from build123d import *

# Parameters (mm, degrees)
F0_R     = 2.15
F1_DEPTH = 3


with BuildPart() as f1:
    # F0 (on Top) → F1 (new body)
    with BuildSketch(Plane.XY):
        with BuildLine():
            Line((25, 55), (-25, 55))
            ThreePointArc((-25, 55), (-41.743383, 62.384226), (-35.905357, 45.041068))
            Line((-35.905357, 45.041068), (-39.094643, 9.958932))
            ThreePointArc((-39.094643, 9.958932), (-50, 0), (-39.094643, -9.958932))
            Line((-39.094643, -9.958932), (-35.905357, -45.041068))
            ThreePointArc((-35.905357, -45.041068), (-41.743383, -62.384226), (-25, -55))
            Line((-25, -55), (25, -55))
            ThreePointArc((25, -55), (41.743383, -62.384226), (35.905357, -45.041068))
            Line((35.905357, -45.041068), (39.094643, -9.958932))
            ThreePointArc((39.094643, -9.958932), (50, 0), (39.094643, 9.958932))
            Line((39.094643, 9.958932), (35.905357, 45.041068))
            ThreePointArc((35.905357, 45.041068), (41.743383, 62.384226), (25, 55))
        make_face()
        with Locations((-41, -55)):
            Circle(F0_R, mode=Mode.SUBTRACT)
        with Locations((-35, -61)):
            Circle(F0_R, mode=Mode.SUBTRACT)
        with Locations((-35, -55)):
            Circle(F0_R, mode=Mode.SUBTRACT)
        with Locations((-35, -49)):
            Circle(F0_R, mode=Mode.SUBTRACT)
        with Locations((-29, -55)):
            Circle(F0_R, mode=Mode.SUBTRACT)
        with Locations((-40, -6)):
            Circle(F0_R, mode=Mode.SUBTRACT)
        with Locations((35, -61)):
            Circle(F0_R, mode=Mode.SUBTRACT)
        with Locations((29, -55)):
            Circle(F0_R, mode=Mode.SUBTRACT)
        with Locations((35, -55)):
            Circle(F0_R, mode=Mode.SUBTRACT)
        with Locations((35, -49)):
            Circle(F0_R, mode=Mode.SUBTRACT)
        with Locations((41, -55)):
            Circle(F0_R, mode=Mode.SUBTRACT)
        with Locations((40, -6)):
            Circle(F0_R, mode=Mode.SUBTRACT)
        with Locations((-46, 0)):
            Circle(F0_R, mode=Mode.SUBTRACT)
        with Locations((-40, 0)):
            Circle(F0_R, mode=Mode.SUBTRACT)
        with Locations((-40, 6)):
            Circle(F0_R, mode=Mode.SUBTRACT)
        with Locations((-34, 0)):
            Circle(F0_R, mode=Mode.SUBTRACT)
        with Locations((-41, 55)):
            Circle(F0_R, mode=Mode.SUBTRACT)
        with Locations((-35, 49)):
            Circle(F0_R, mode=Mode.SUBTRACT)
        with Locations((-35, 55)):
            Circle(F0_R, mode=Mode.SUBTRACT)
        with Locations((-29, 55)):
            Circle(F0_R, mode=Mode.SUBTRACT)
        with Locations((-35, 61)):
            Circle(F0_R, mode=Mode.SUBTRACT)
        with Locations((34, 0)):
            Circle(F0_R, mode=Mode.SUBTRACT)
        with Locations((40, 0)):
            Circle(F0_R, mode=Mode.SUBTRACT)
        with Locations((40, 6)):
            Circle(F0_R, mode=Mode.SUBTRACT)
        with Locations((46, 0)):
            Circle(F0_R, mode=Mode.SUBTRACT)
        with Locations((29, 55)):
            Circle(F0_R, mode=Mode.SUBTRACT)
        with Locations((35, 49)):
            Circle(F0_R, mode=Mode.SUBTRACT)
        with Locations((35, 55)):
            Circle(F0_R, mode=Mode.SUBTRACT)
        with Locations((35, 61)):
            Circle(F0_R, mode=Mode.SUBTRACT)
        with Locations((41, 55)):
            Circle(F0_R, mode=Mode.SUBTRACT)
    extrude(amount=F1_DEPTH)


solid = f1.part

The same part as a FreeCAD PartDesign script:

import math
import FreeCAD as App
import Part
import Sketcher

V = App.Vector
Q = App.Units.Quantity

doc = App.newDocument("Part")
params = doc.addObject("Spreadsheet::Sheet", "Params")
for row, (alias, value) in enumerate([
    ("sketch1_radius", "10 mm"),
    ("sketch1_diameter", "4.3 mm"),
    ("sketch1_width", "50 mm"),
    ("pad1_length", "3 mm"),
], start=1):
    params.set(f"A{row}", alias)
    params.set(f"B{row}", "=" + value)
    params.setAlias(f"B{row}", alias)

body = doc.addObject("PartDesign::Body", "Body")

# Sketch on XY plane
sketch1 = body.newObject("Sketcher::SketchObject", "Sketch")
sketch1.AttachmentSupport = (doc.getObject("XY_Plane"), [""])
sketch1.MapMode = "FlatFace"
sketch1.addGeometry(Part.LineSegment(V(25, 55, 0), V(-25, 55, 0)), False)
sketch1.addGeometry(Part.ArcOfCircle(Part.Circle(V(-35, 55, 0), V(0, 0, 1), 10), math.radians(0), math.radians(265)), False)
sketch1.addGeometry(Part.LineSegment(V(-35.9, 45, 0), V(-39.1, 10, 0)), False)
sketch1.addGeometry(Part.ArcOfCircle(Part.Circle(V(-40, 0, 0), V(0, 0, 1), 10), math.radians(85), math.radians(275)), False)
sketch1.addGeometry(Part.LineSegment(V(-39.1, -10, 0), V(-35.9, -45, 0)), False)
sketch1.addGeometry(Part.ArcOfCircle(Part.Circle(V(-35, -55, 0), V(0, 0, 1), 10), math.radians(95), math.radians(360)), False)
sketch1.addGeometry(Part.LineSegment(V(-25, -55, 0), V(25, -55, 0)), False)
sketch1.addGeometry(Part.ArcOfCircle(Part.Circle(V(35, -55, 0), V(0, 0, 1), 10), math.radians(180), math.radians(445)), False)
sketch1.addGeometry(Part.LineSegment(V(35.9, -45, 0), V(39.1, -10, 0)), False)
sketch1.addGeometry(Part.ArcOfCircle(Part.Circle(V(40, 0, 0), V(0, 0, 1), 10), math.radians(-95), math.radians(95)), False)
sketch1.addGeometry(Part.LineSegment(V(39.1, 10, 0), V(35.9, 45, 0)), False)
sketch1.addGeometry(Part.ArcOfCircle(Part.Circle(V(35, 55, 0), V(0, 0, 1), 10), math.radians(-85), math.radians(180)), False)
sketch1.addGeometry(Part.Circle(V(-41, -55, 0), V(0, 0, 1), 2.1), False)
sketch1.addGeometry(Part.Circle(V(-35, -61, 0), V(0, 0, 1), 2.1), False)
sketch1.addGeometry(Part.Circle(V(-35, -55, 0), V(0, 0, 1), 2.1), False)
sketch1.addGeometry(Part.Circle(V(-35, -49, 0), V(0, 0, 1), 2.1), False)
sketch1.addGeometry(Part.Circle(V(-29, -55, 0), V(0, 0, 1), 2.1), False)
sketch1.addGeometry(Part.Circle(V(-40, -6, 0), V(0, 0, 1), 2.1), False)
sketch1.addGeometry(Part.Circle(V(35, -61, 0), V(0, 0, 1), 2.1), False)
sketch1.addGeometry(Part.Circle(V(29, -55, 0), V(0, 0, 1), 2.1), False)
sketch1.addGeometry(Part.Circle(V(35, -55, 0), V(0, 0, 1), 2.1), False)
sketch1.addGeometry(Part.Circle(V(35, -49, 0), V(0, 0, 1), 2.1), False)
sketch1.addGeometry(Part.Circle(V(41, -55, 0), V(0, 0, 1), 2.1), False)
sketch1.addGeometry(Part.Circle(V(40, -6, 0), V(0, 0, 1), 2.1), False)
sketch1.addGeometry(Part.Circle(V(-46, 0, 0), V(0, 0, 1), 2.1), False)
sketch1.addGeometry(Part.Circle(V(-40, 0, 0), V(0, 0, 1), 2.1), False)
sketch1.addGeometry(Part.Circle(V(-40, 6, 0), V(0, 0, 1), 2.1), False)
sketch1.addGeometry(Part.Circle(V(-34, 0, 0), V(0, 0, 1), 2.1), False)
sketch1.addGeometry(Part.Circle(V(-41, 55, 0), V(0, 0, 1), 2.1), False)
sketch1.addGeometry(Part.Circle(V(-35, 49, 0), V(0, 0, 1), 2.1), False)
sketch1.addGeometry(Part.Circle(V(-35, 55, 0), V(0, 0, 1), 2.1), False)
sketch1.addGeometry(Part.Circle(V(-29, 55, 0), V(0, 0, 1), 2.1), False)
sketch1.addGeometry(Part.Circle(V(-35, 61, 0), V(0, 0, 1), 2.1), False)
sketch1.addGeometry(Part.Circle(V(34, 0, 0), V(0, 0, 1), 2.1), False)
sketch1.addGeometry(Part.Circle(V(40, 0, 0), V(0, 0, 1), 2.1), False)
sketch1.addGeometry(Part.Circle(V(40, 6, 0), V(0, 0, 1), 2.1), False)
sketch1.addGeometry(Part.Circle(V(46, 0, 0), V(0, 0, 1), 2.1), False)
sketch1.addGeometry(Part.Circle(V(29, 55, 0), V(0, 0, 1), 2.1), False)
sketch1.addGeometry(Part.Circle(V(35, 49, 0), V(0, 0, 1), 2.1), False)
sketch1.addGeometry(Part.Circle(V(35, 55, 0), V(0, 0, 1), 2.1), False)
sketch1.addGeometry(Part.Circle(V(35, 61, 0), V(0, 0, 1), 2.1), False)
sketch1.addGeometry(Part.Circle(V(41, 55, 0), V(0, 0, 1), 2.1), False)
sketch1.addConstraint(Sketcher.Constraint("Coincident", 0, 2, 1, 1))
sketch1.addConstraint(Sketcher.Constraint("Coincident", 1, 2, 2, 1))
sketch1.addConstraint(Sketcher.Constraint("Coincident", 2, 2, 3, 1))
sketch1.addConstraint(Sketcher.Constraint("Coincident", 3, 2, 4, 1))
sketch1.addConstraint(Sketcher.Constraint("Coincident", 4, 2, 5, 1))
sketch1.addConstraint(Sketcher.Constraint("Coincident", 5, 2, 6, 1))
sketch1.addConstraint(Sketcher.Constraint("Coincident", 6, 2, 7, 1))
sketch1.addConstraint(Sketcher.Constraint("Coincident", 7, 2, 8, 1))
sketch1.addConstraint(Sketcher.Constraint("Coincident", 8, 2, 9, 1))
sketch1.addConstraint(Sketcher.Constraint("Coincident", 9, 2, 10, 1))
sketch1.addConstraint(Sketcher.Constraint("Coincident", 10, 2, 11, 1))
sketch1.addConstraint(Sketcher.Constraint("Coincident", 11, 2, 0, 1))
sketch1.addConstraint(Sketcher.Constraint("Horizontal", 0))
sketch1.addConstraint(Sketcher.Constraint("Horizontal", 6))
sketch1.addConstraint(Sketcher.Constraint("Coincident", 14, 3, 5, 3))
sketch1.addConstraint(Sketcher.Constraint("Coincident", 20, 3, 7, 3))
sketch1.addConstraint(Sketcher.Constraint("Coincident", 25, 3, 3, 3))
sketch1.addConstraint(Sketcher.Constraint("Coincident", 30, 3, 1, 3))
sketch1.addConstraint(Sketcher.Constraint("Coincident", 34, 3, 9, 3))
sketch1.addConstraint(Sketcher.Constraint("Coincident", 39, 3, 11, 3))
sketch1.addConstraint(Sketcher.Constraint("Equal", 1, 3))
sketch1.addConstraint(Sketcher.Constraint("Equal", 3, 5))
sketch1.addConstraint(Sketcher.Constraint("Equal", 5, 7))
sketch1.addConstraint(Sketcher.Constraint("Equal", 7, 9))
sketch1.addConstraint(Sketcher.Constraint("Equal", 9, 11))
sketch1.addConstraint(Sketcher.Constraint("Equal", 12, 13))
sketch1.addConstraint(Sketcher.Constraint("Equal", 13, 14))
sketch1.addConstraint(Sketcher.Constraint("Equal", 14, 15))
sketch1.addConstraint(Sketcher.Constraint("Equal", 15, 16))
sketch1.addConstraint(Sketcher.Constraint("Equal", 16, 17))
sketch1.addConstraint(Sketcher.Constraint("Equal", 17, 18))
sketch1.addConstraint(Sketcher.Constraint("Equal", 18, 19))
sketch1.addConstraint(Sketcher.Constraint("Equal", 19, 20))
sketch1.addConstraint(Sketcher.Constraint("Equal", 20, 21))
sketch1.addConstraint(Sketcher.Constraint("Equal", 21, 22))
sketch1.addConstraint(Sketcher.Constraint("Equal", 22, 23))
sketch1.addConstraint(Sketcher.Constraint("Equal", 23, 24))
sketch1.addConstraint(Sketcher.Constraint("Equal", 24, 25))
sketch1.addConstraint(Sketcher.Constraint("Equal", 25, 26))
sketch1.addConstraint(Sketcher.Constraint("Equal", 26, 27))
sketch1.addConstraint(Sketcher.Constraint("Equal", 27, 28))
sketch1.addConstraint(Sketcher.Constraint("Equal", 28, 29))
sketch1.addConstraint(Sketcher.Constraint("Equal", 29, 30))
sketch1.addConstraint(Sketcher.Constraint("Equal", 30, 31))
sketch1.addConstraint(Sketcher.Constraint("Equal", 31, 32))
sketch1.addConstraint(Sketcher.Constraint("Equal", 32, 33))
sketch1.addConstraint(Sketcher.Constraint("Equal", 33, 34))
sketch1.addConstraint(Sketcher.Constraint("Equal", 34, 35))
sketch1.addConstraint(Sketcher.Constraint("Equal", 35, 36))
sketch1.addConstraint(Sketcher.Constraint("Equal", 36, 37))
sketch1.addConstraint(Sketcher.Constraint("Equal", 37, 38))
sketch1.addConstraint(Sketcher.Constraint("Equal", 38, 39))
sketch1.addConstraint(Sketcher.Constraint("Equal", 39, 40))
sketch1.addConstraint(Sketcher.Constraint("Equal", 40, 41))
sketch1.addConstraint(Sketcher.Constraint("Symmetric", 1, 3, 7, 3, -1, 1))
sketch1.addConstraint(Sketcher.Constraint("Symmetric", 3, 3, 9, 3, -1, 1))
sketch1.addConstraint(Sketcher.Constraint("Symmetric", 5, 3, 11, 3, -1, 1))
sketch1.addConstraint(Sketcher.Constraint("Symmetric", 23, 3, 26, 3, -1, 1))
sketch1.addConstraint(Sketcher.Constraint("Symmetric", 22, 3, 28, 3, -1, 1))
sketch1.addConstraint(Sketcher.Constraint("Symmetric", 21, 3, 29, 3, -1, 1))
sketch1.addConstraint(Sketcher.Constraint("Symmetric", 19, 3, 31, 3, -1, 1))
sketch1.addConstraint(Sketcher.Constraint("Symmetric", 18, 3, 32, 3, -1, 1))
sketch1.addConstraint(Sketcher.Constraint("Symmetric", 27, 3, 33, 3, -1, 1))
sketch1.addConstraint(Sketcher.Constraint("Symmetric", 17, 3, 35, 3, -1, 1))
sketch1.addConstraint(Sketcher.Constraint("Symmetric", 24, 3, 36, 3, -1, 1))
sketch1.addConstraint(Sketcher.Constraint("Symmetric", 16, 3, 37, 3, -1, 1))
sketch1.addConstraint(Sketcher.Constraint("Symmetric", 15, 3, 38, 3, -1, 1))
sketch1.addConstraint(Sketcher.Constraint("Symmetric", 13, 3, 40, 3, -1, 1))
sketch1.addConstraint(Sketcher.Constraint("Symmetric", 12, 3, 41, 3, -1, 1))
sketch1.addConstraint(Sketcher.Constraint("Symmetric", 5, 3, 7, 3, -2))
sketch1.addConstraint(Sketcher.Constraint("Symmetric", 13, 3, 18, 3, -2))
sketch1.addConstraint(Sketcher.Constraint("Symmetric", 16, 3, 19, 3, -2))
sketch1.addConstraint(Sketcher.Constraint("Symmetric", 15, 3, 21, 3, -2))
sketch1.addConstraint(Sketcher.Constraint("Symmetric", 12, 3, 22, 3, -2))
sketch1.addConstraint(Sketcher.Constraint("Symmetric", 17, 3, 23, 3, -2))
sketch1.addConstraint(Sketcher.Constraint("Symmetric", 3, 2, 8, 2, -2))
sketch1.addConstraint(Sketcher.Constraint("PointOnObject", 24, 3, -1))
sketch1.addConstraint(Sketcher.Constraint("PointOnObject", 27, 3, -1))
sketch1.addConstraint(Sketcher.Constraint("Parallel", 2, 8))
sketch1.addConstraint(Sketcher.Constraint("Parallel", 4, 10))
sketch1.addConstraint(Sketcher.Constraint("Horizontal", 7, 3, 12, 3))
sketch1.addConstraint(Sketcher.Constraint("Horizontal", 14, 3, 16, 3))
sketch1.addConstraint(Sketcher.Constraint("Horizontal", 41, 3, 0, 2))
sketch1.addConstraint(Sketcher.Constraint("Horizontal", 22, 3, 5, 2))
sketch1.addConstraint(Sketcher.Constraint("Horizontal", 4, 2, 7, 2))
sketch1.addConstraint(Sketcher.Constraint("Horizontal", 2, 2, 9, 2))
sketch1.addConstraint(Sketcher.Constraint("Vertical", 5, 3, 13, 3))
sketch1.addConstraint(Sketcher.Constraint("Vertical", 14, 3, 15, 3))
sketch1.addConstraint(Sketcher.Constraint("Vertical", 3, 3, 17, 3))
sketch1.addConstraint(Sketcher.Constraint("Vertical", 2, 2, 3, 2))
sketch1.addConstraint(Sketcher.Constraint("Radius", 1, Q("10 mm")))
sketch1.addConstraint(Sketcher.Constraint("Diameter", 12, Q("4.3 mm")))
sketch1.addConstraint(Sketcher.Constraint("DistanceX", 0, 2, 0, 1, Q("50 mm")))
sketch1.addConstraint(Sketcher.Constraint("DistanceY", -1, 1, 1, 3, Q("55 mm")))
sketch1.addConstraint(Sketcher.Constraint("DistanceX", 3, 3, -1, 1, Q("40 mm")))
sketch1.addConstraint(Sketcher.Constraint("DistanceX", 12, 3, -1, 1, Q("41 mm")))
sketch1.addConstraint(Sketcher.Constraint("DistanceY", 13, 3, -1, 1, Q("61 mm")))
sketch1.addConstraint(Sketcher.Constraint("DistanceY", 15, 3, -1, 1, Q("49 mm")))
sketch1.addConstraint(Sketcher.Constraint("DistanceX", 16, 3, -1, 1, Q("29 mm")))
sketch1.addConstraint(Sketcher.Constraint("DistanceY", 17, 3, -1, 1, Q("6 mm")))
sketch1.addConstraint(Sketcher.Constraint("DistanceX", 24, 3, -1, 1, Q("46 mm")))
sketch1.addConstraint(Sketcher.Constraint("DistanceX", 27, 3, -1, 1, Q("34 mm")))
sketch1.addConstraint(Sketcher.Constraint("DistanceY", -1, 1, 1, 2, Q("45.041068 mm")))
sketch1.addConstraint(Sketcher.Constraint("DistanceX", 2, 2, -1, 1, Q("39.094643 mm")))
sketch1.setExpression("Constraints[90]", "Params.sketch1_radius")
sketch1.setExpression("Constraints[91]", "Params.sketch1_diameter")
sketch1.setExpression("Constraints[92]", "Params.sketch1_width")
pad1 = body.newObject("PartDesign::Pad", "Pad")
pad1.Profile = sketch1
pad1.setExpression("Length", "Params.pad1_length")

doc.recompute()
